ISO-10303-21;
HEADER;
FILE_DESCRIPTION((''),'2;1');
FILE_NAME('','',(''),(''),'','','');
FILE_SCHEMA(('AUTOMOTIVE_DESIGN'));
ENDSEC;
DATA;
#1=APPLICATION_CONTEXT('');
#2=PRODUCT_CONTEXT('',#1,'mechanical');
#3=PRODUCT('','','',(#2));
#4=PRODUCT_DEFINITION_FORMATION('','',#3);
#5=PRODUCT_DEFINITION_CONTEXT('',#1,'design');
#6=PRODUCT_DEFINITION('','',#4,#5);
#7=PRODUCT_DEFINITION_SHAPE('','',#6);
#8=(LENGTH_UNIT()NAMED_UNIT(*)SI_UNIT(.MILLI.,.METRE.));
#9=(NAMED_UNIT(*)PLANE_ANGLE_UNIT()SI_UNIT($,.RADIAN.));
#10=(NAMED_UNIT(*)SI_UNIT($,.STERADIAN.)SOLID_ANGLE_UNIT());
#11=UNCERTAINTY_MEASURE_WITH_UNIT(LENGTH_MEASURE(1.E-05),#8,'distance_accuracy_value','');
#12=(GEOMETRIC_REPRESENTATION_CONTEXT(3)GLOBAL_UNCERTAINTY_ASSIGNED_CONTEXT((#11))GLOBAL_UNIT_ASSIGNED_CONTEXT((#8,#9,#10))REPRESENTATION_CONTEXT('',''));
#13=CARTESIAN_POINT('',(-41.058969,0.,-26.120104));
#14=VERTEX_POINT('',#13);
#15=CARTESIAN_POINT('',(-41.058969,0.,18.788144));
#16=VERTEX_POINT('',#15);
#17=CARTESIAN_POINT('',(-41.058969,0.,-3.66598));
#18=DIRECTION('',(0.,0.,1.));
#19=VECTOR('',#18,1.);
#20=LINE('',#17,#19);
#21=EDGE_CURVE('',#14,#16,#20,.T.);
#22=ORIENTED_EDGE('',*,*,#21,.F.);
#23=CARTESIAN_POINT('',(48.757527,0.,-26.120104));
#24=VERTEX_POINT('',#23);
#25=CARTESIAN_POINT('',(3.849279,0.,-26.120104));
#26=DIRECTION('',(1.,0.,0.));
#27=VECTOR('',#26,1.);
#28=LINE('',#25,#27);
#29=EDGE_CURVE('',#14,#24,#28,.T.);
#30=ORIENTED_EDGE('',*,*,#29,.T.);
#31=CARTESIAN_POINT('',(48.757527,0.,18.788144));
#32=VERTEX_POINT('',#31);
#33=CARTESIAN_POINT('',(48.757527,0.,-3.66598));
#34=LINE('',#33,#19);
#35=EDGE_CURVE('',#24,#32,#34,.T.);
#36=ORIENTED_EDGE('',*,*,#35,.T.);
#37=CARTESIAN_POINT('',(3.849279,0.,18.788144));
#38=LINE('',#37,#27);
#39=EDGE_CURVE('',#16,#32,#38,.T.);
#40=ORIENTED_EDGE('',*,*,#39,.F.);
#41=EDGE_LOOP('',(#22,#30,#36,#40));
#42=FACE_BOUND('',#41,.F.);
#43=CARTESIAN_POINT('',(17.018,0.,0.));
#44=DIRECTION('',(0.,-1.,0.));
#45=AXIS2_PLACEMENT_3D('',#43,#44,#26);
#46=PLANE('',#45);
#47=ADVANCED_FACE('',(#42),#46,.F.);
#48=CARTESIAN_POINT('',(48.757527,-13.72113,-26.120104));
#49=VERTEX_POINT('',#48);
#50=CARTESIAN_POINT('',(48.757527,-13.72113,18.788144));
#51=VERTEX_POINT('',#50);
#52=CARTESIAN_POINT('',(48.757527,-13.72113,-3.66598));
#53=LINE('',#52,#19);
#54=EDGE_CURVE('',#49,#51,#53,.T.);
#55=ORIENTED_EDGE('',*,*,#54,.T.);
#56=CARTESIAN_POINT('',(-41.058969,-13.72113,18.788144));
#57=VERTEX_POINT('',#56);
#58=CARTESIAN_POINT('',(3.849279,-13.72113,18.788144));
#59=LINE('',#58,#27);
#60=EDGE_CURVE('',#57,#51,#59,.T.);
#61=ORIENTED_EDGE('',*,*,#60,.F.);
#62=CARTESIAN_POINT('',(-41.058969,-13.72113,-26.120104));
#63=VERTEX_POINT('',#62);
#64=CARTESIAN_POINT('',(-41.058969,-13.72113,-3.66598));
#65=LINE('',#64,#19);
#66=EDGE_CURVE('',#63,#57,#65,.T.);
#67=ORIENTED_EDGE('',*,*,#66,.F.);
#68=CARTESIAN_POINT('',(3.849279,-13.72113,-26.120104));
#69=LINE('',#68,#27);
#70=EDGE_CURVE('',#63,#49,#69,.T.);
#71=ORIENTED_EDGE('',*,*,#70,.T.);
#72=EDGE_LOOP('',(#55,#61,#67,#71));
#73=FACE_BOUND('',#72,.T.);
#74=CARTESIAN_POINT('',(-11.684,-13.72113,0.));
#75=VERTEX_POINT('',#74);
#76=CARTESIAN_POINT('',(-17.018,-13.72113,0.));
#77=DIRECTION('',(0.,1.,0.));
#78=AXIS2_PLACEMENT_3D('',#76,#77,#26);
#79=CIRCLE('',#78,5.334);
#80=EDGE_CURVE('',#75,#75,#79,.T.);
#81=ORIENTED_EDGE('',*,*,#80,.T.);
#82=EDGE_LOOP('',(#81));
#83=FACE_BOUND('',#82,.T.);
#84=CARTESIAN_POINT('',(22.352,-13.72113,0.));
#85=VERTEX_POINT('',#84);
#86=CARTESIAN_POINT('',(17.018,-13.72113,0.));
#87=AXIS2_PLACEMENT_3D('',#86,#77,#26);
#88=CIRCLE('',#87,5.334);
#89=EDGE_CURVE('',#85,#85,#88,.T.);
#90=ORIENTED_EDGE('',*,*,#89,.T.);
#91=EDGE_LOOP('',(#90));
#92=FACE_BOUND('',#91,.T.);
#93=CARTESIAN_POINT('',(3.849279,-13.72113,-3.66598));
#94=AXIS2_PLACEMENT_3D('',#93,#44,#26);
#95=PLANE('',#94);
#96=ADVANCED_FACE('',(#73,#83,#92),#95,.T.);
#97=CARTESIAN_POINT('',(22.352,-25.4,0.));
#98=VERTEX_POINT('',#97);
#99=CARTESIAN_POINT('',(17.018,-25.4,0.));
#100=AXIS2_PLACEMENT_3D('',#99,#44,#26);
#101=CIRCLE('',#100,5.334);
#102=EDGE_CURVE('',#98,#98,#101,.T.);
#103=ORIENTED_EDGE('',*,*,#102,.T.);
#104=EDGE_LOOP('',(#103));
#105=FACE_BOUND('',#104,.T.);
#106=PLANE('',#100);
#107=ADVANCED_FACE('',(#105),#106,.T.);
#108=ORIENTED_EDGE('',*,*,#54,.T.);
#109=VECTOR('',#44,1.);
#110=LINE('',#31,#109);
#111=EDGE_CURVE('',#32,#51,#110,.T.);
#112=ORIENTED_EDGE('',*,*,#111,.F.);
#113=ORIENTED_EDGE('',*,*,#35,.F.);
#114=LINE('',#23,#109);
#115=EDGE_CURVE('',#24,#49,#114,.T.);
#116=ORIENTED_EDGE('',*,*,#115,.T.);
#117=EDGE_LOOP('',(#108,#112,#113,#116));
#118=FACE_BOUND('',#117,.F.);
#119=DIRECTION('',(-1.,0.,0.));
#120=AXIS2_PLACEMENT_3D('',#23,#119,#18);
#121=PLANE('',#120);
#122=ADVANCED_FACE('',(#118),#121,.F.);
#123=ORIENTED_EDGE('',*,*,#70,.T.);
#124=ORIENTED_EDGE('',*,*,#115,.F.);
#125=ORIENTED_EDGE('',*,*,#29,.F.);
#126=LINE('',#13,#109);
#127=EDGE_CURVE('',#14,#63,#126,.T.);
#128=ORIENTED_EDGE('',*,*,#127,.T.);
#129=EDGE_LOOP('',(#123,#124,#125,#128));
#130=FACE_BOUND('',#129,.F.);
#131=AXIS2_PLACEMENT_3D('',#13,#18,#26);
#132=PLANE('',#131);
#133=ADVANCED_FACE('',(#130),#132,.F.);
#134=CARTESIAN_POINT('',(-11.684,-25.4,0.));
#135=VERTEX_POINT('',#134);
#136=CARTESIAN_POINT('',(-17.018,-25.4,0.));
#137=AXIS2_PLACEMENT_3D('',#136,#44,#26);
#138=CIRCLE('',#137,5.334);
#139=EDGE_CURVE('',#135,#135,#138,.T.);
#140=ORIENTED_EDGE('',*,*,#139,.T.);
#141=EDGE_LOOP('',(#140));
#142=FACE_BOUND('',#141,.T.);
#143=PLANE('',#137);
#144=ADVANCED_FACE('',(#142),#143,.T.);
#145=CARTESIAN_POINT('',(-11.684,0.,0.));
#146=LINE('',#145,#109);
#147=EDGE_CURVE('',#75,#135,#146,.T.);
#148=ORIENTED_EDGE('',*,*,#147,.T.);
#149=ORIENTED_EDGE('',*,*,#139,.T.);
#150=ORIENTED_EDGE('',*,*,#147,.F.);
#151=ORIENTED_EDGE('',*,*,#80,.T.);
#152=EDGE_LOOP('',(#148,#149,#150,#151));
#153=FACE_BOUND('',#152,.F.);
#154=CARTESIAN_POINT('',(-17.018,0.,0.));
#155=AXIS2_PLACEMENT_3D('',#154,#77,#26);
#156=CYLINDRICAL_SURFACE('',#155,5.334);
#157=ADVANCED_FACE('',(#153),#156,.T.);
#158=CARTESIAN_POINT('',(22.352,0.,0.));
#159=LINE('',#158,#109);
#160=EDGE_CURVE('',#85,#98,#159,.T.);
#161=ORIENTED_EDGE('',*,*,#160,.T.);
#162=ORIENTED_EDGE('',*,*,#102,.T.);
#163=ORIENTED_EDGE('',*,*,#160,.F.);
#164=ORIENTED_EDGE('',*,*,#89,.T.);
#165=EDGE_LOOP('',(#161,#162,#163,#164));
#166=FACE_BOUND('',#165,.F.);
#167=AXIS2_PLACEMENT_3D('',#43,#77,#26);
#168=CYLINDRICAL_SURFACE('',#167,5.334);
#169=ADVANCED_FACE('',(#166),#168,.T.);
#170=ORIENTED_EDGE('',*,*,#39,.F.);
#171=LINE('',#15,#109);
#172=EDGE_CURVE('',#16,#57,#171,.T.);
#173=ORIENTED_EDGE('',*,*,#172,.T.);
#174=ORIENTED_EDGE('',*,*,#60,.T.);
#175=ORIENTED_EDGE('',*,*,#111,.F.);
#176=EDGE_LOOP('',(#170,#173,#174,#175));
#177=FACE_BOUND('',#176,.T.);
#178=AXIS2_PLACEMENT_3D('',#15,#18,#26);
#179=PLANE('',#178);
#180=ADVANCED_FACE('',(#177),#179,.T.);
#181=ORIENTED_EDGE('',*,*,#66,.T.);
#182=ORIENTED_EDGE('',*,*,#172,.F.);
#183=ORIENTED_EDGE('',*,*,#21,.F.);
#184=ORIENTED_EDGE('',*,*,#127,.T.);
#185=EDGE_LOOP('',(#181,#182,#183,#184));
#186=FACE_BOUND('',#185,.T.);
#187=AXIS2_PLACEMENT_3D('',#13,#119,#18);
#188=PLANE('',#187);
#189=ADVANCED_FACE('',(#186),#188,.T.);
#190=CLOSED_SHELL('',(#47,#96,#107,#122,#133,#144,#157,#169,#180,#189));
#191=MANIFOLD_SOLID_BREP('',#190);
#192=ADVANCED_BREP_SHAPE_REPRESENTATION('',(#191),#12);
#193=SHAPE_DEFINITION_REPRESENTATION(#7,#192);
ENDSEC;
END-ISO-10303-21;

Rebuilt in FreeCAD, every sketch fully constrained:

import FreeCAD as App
import Part
import Sketcher
from FreeCAD import Vector
Q = App.Units.Quantity

doc = App.newDocument("Part")
body = doc.addObject("PartDesign::Body", "Body")

sketch1 = body.newObject("Sketcher::SketchObject", "Sketch")
sketch1.AttachmentSupport = (doc.getObject("XZ_Plane"), [""])
sketch1.MapMode = "FlatFace"
sketch1.addGeometry([
    Part.LineSegment(Vector(-41, 19, 0), Vector(-41, -26, 0)),
    Part.LineSegment(Vector(-41, -26, 0), Vector(49, -26, 0)),
    Part.LineSegment(Vector(49, -26, 0), Vector(49, 19, 0)),
    Part.LineSegment(Vector(49, 19, 0), Vector(-41, 19, 0)),
], False)
sketch1.addConstraint([
    Sketcher.Constraint("Coincident", 0, 2, 1, 1),
    Sketcher.Constraint("Coincident", 1, 2, 2, 1),
    Sketcher.Constraint("Coincident", 2, 2, 3, 1),
    Sketcher.Constraint("Coincident", 3, 2, 0, 1),
    Sketcher.Constraint("Vertical", 0),
    Sketcher.Constraint("Horizontal", 1),
    Sketcher.Constraint("Vertical", 2),
    Sketcher.Constraint("Horizontal", 3),
    Sketcher.Constraint("DistanceX", 1, 1, 1, 2, Q("89.816496 mm")),
    Sketcher.Constraint("DistanceY", 0, 2, 0, 1, Q("44.908248 mm")),
    Sketcher.Constraint("DistanceX", 0, 2, -1, 1, Q("41.058969 mm")),
    Sketcher.Constraint("DistanceY", 0, 2, -1, 1, Q("26.120104 mm")),
])
pad1 = body.newObject("PartDesign::Pad", "Pad")
pad1.Profile = sketch1
pad1.Length = 13.72113

sketch2 = body.newObject("Sketcher::SketchObject", "Sketch001")
sketch2.AttachmentSupport = (doc.getObject("XZ_Plane"), [""])
sketch2.MapMode = "FlatFace"
sketch2.addGeometry([
    Part.Circle(Vector(17, 0, 0), Vector(0, 0, 1), 5),
    Part.Circle(Vector(-17, 0, 0), Vector(0, 0, 1), 5),
], False)
sketch2.addConstraint([
    Sketcher.Constraint("Equal", 0, 1),
    Sketcher.Constraint("Symmetric", 0, 3, 1, 3, -1, 1),
    Sketcher.Constraint("PointOnObject", 0, 3, -1),
    Sketcher.Constraint("Diameter", 0, Q("0.42 in")),
    Sketcher.Constraint("DistanceX", -1, 1, 0, 3, Q("0.67 in")),
])
pad2 = body.newObject("PartDesign::Pad", "Pad001")
pad2.Profile = sketch2
pad2.Length = Q("1 in")

doc.recompute()
